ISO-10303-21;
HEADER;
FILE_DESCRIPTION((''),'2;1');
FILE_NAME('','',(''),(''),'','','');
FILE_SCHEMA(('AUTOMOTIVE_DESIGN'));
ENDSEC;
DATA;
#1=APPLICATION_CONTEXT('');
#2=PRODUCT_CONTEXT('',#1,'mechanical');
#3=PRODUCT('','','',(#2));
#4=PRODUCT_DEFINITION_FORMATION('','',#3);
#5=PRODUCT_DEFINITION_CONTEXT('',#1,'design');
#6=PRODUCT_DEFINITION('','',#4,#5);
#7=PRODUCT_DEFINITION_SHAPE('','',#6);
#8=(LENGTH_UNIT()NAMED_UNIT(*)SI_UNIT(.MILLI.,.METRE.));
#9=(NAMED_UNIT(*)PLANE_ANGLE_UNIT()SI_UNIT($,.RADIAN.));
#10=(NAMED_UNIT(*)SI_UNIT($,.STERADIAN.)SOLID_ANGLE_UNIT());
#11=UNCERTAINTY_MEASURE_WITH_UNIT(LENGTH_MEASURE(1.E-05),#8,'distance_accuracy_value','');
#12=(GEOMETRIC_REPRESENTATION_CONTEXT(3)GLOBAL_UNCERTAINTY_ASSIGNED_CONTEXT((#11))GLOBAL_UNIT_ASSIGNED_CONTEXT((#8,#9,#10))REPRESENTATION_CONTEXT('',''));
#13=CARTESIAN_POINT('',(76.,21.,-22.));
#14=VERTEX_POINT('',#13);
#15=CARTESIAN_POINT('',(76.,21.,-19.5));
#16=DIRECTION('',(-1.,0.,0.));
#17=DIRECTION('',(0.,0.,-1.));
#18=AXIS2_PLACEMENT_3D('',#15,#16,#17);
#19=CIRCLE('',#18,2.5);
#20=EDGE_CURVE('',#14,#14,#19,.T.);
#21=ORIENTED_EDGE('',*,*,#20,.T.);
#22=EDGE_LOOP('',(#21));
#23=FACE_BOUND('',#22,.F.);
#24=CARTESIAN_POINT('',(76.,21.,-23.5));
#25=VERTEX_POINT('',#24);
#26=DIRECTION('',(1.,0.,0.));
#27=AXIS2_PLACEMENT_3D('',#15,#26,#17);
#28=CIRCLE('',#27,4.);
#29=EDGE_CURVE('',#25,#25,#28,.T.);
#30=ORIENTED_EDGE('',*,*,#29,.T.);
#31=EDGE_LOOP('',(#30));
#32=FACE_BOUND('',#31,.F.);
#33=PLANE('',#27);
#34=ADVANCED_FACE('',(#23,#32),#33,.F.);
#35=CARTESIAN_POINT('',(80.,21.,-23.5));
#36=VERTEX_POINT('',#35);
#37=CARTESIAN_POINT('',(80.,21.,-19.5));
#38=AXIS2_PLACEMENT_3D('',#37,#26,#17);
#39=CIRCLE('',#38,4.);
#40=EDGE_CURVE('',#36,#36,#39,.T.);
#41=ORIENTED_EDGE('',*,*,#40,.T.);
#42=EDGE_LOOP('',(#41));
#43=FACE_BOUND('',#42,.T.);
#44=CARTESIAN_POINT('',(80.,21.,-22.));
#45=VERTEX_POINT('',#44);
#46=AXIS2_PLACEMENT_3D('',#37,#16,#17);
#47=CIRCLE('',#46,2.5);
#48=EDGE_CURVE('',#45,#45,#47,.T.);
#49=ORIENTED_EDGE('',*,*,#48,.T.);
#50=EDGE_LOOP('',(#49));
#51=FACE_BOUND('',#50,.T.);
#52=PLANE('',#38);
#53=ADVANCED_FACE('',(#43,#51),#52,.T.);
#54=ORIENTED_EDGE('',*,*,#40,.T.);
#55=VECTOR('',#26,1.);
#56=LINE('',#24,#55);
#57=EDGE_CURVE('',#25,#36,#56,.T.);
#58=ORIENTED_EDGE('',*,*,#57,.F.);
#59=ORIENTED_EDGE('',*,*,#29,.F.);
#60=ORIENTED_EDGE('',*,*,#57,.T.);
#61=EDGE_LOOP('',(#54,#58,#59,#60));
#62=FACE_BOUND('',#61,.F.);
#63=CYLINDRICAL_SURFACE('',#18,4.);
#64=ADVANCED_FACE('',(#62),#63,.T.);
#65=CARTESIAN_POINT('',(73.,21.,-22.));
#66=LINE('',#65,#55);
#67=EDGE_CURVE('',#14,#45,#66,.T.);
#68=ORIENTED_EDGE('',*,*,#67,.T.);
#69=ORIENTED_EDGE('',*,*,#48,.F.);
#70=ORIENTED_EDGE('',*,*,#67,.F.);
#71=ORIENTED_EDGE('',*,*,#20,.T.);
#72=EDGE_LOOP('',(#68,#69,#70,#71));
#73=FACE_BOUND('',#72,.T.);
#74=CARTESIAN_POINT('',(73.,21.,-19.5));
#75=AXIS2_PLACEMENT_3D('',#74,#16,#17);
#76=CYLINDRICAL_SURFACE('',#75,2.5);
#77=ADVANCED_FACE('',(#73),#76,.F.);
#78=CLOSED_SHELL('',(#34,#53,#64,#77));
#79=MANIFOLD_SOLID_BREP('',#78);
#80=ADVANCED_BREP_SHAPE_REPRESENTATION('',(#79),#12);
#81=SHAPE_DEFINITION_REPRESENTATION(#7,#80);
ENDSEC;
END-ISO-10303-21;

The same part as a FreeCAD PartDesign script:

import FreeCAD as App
import Part
import Sketcher

V = App.Vector

doc = App.newDocument("Part")
body = doc.addObject("PartDesign::Body", "Body")

# Sketch on YZ plane
sketch1 = body.newObject("Sketcher::SketchObject", "Sketch")
sketch1.AttachmentSupport = (doc.getObject("YZ_Plane"), [""])
sketch1.MapMode = "FlatFace"
sketch1.AttachmentOffset = App.Placement(V(0, 0, 23.5), App.Rotation())
sketch1.addGeometry(Part.Circle(V(-39, -22, 0), V(0, 0, 1), 2.5), False)
sketch1.addConstraint([
    Sketcher.Constraint("Diameter", 0, 5.0),
    Sketcher.Constraint("DistanceX", 0, 3, -1, 1, 39.0),
    Sketcher.Constraint("DistanceY", 0, 3, -1, 1, 22.0),
])
pad1 = body.newObject("PartDesign::Pad", "Pad")
pad1.Profile = sketch1
pad1.Length = 10
body2 = doc.addObject("PartDesign::Body", "Body001")

# Sketch on YZ plane
sketch2 = body2.newObject("Sketcher::SketchObject", "Sketch001")
sketch2.AttachmentSupport = (doc.getObject("YZ_Plane001"), [""])
sketch2.MapMode = "FlatFace"
sketch2.AttachmentOffset = App.Placement(V(0, 0, 26.5), App.Rotation())
sketch2.addGeometry(Part.Circle(V(-39, -22, 0), V(0, 0, 1), 4), False)
sketch2.addConstraint([
    Sketcher.Constraint("Diameter", 0, 8.0),
    Sketcher.Constraint("DistanceX", 0, 3, -1, 1, 39.0),
    Sketcher.Constraint("DistanceY", 0, 3, -1, 1, 22.0),
])
pad2 = body2.newObject("PartDesign::Pad", "Pad001")
pad2.Profile = sketch2
pad2.Length = 4
doc.recompute()

boolean = body2.newObject("PartDesign::Boolean", "Boolean")
boolean.Type = "Cut"
boolean.addObjects([body])
body3 = doc.addObject("PartDesign::Body", "Body002")
doc.recompute()

body2.Placement = App.Placement(V(49.5, 60, 2.5), App.Rotation(V(0, 0, 1), 0))
boolean2 = body3.newObject("PartDesign::Boolean", "Boolean001")
boolean2.Type = "Fuse"
boolean2.addObjects([body2])

doc.recompute()
